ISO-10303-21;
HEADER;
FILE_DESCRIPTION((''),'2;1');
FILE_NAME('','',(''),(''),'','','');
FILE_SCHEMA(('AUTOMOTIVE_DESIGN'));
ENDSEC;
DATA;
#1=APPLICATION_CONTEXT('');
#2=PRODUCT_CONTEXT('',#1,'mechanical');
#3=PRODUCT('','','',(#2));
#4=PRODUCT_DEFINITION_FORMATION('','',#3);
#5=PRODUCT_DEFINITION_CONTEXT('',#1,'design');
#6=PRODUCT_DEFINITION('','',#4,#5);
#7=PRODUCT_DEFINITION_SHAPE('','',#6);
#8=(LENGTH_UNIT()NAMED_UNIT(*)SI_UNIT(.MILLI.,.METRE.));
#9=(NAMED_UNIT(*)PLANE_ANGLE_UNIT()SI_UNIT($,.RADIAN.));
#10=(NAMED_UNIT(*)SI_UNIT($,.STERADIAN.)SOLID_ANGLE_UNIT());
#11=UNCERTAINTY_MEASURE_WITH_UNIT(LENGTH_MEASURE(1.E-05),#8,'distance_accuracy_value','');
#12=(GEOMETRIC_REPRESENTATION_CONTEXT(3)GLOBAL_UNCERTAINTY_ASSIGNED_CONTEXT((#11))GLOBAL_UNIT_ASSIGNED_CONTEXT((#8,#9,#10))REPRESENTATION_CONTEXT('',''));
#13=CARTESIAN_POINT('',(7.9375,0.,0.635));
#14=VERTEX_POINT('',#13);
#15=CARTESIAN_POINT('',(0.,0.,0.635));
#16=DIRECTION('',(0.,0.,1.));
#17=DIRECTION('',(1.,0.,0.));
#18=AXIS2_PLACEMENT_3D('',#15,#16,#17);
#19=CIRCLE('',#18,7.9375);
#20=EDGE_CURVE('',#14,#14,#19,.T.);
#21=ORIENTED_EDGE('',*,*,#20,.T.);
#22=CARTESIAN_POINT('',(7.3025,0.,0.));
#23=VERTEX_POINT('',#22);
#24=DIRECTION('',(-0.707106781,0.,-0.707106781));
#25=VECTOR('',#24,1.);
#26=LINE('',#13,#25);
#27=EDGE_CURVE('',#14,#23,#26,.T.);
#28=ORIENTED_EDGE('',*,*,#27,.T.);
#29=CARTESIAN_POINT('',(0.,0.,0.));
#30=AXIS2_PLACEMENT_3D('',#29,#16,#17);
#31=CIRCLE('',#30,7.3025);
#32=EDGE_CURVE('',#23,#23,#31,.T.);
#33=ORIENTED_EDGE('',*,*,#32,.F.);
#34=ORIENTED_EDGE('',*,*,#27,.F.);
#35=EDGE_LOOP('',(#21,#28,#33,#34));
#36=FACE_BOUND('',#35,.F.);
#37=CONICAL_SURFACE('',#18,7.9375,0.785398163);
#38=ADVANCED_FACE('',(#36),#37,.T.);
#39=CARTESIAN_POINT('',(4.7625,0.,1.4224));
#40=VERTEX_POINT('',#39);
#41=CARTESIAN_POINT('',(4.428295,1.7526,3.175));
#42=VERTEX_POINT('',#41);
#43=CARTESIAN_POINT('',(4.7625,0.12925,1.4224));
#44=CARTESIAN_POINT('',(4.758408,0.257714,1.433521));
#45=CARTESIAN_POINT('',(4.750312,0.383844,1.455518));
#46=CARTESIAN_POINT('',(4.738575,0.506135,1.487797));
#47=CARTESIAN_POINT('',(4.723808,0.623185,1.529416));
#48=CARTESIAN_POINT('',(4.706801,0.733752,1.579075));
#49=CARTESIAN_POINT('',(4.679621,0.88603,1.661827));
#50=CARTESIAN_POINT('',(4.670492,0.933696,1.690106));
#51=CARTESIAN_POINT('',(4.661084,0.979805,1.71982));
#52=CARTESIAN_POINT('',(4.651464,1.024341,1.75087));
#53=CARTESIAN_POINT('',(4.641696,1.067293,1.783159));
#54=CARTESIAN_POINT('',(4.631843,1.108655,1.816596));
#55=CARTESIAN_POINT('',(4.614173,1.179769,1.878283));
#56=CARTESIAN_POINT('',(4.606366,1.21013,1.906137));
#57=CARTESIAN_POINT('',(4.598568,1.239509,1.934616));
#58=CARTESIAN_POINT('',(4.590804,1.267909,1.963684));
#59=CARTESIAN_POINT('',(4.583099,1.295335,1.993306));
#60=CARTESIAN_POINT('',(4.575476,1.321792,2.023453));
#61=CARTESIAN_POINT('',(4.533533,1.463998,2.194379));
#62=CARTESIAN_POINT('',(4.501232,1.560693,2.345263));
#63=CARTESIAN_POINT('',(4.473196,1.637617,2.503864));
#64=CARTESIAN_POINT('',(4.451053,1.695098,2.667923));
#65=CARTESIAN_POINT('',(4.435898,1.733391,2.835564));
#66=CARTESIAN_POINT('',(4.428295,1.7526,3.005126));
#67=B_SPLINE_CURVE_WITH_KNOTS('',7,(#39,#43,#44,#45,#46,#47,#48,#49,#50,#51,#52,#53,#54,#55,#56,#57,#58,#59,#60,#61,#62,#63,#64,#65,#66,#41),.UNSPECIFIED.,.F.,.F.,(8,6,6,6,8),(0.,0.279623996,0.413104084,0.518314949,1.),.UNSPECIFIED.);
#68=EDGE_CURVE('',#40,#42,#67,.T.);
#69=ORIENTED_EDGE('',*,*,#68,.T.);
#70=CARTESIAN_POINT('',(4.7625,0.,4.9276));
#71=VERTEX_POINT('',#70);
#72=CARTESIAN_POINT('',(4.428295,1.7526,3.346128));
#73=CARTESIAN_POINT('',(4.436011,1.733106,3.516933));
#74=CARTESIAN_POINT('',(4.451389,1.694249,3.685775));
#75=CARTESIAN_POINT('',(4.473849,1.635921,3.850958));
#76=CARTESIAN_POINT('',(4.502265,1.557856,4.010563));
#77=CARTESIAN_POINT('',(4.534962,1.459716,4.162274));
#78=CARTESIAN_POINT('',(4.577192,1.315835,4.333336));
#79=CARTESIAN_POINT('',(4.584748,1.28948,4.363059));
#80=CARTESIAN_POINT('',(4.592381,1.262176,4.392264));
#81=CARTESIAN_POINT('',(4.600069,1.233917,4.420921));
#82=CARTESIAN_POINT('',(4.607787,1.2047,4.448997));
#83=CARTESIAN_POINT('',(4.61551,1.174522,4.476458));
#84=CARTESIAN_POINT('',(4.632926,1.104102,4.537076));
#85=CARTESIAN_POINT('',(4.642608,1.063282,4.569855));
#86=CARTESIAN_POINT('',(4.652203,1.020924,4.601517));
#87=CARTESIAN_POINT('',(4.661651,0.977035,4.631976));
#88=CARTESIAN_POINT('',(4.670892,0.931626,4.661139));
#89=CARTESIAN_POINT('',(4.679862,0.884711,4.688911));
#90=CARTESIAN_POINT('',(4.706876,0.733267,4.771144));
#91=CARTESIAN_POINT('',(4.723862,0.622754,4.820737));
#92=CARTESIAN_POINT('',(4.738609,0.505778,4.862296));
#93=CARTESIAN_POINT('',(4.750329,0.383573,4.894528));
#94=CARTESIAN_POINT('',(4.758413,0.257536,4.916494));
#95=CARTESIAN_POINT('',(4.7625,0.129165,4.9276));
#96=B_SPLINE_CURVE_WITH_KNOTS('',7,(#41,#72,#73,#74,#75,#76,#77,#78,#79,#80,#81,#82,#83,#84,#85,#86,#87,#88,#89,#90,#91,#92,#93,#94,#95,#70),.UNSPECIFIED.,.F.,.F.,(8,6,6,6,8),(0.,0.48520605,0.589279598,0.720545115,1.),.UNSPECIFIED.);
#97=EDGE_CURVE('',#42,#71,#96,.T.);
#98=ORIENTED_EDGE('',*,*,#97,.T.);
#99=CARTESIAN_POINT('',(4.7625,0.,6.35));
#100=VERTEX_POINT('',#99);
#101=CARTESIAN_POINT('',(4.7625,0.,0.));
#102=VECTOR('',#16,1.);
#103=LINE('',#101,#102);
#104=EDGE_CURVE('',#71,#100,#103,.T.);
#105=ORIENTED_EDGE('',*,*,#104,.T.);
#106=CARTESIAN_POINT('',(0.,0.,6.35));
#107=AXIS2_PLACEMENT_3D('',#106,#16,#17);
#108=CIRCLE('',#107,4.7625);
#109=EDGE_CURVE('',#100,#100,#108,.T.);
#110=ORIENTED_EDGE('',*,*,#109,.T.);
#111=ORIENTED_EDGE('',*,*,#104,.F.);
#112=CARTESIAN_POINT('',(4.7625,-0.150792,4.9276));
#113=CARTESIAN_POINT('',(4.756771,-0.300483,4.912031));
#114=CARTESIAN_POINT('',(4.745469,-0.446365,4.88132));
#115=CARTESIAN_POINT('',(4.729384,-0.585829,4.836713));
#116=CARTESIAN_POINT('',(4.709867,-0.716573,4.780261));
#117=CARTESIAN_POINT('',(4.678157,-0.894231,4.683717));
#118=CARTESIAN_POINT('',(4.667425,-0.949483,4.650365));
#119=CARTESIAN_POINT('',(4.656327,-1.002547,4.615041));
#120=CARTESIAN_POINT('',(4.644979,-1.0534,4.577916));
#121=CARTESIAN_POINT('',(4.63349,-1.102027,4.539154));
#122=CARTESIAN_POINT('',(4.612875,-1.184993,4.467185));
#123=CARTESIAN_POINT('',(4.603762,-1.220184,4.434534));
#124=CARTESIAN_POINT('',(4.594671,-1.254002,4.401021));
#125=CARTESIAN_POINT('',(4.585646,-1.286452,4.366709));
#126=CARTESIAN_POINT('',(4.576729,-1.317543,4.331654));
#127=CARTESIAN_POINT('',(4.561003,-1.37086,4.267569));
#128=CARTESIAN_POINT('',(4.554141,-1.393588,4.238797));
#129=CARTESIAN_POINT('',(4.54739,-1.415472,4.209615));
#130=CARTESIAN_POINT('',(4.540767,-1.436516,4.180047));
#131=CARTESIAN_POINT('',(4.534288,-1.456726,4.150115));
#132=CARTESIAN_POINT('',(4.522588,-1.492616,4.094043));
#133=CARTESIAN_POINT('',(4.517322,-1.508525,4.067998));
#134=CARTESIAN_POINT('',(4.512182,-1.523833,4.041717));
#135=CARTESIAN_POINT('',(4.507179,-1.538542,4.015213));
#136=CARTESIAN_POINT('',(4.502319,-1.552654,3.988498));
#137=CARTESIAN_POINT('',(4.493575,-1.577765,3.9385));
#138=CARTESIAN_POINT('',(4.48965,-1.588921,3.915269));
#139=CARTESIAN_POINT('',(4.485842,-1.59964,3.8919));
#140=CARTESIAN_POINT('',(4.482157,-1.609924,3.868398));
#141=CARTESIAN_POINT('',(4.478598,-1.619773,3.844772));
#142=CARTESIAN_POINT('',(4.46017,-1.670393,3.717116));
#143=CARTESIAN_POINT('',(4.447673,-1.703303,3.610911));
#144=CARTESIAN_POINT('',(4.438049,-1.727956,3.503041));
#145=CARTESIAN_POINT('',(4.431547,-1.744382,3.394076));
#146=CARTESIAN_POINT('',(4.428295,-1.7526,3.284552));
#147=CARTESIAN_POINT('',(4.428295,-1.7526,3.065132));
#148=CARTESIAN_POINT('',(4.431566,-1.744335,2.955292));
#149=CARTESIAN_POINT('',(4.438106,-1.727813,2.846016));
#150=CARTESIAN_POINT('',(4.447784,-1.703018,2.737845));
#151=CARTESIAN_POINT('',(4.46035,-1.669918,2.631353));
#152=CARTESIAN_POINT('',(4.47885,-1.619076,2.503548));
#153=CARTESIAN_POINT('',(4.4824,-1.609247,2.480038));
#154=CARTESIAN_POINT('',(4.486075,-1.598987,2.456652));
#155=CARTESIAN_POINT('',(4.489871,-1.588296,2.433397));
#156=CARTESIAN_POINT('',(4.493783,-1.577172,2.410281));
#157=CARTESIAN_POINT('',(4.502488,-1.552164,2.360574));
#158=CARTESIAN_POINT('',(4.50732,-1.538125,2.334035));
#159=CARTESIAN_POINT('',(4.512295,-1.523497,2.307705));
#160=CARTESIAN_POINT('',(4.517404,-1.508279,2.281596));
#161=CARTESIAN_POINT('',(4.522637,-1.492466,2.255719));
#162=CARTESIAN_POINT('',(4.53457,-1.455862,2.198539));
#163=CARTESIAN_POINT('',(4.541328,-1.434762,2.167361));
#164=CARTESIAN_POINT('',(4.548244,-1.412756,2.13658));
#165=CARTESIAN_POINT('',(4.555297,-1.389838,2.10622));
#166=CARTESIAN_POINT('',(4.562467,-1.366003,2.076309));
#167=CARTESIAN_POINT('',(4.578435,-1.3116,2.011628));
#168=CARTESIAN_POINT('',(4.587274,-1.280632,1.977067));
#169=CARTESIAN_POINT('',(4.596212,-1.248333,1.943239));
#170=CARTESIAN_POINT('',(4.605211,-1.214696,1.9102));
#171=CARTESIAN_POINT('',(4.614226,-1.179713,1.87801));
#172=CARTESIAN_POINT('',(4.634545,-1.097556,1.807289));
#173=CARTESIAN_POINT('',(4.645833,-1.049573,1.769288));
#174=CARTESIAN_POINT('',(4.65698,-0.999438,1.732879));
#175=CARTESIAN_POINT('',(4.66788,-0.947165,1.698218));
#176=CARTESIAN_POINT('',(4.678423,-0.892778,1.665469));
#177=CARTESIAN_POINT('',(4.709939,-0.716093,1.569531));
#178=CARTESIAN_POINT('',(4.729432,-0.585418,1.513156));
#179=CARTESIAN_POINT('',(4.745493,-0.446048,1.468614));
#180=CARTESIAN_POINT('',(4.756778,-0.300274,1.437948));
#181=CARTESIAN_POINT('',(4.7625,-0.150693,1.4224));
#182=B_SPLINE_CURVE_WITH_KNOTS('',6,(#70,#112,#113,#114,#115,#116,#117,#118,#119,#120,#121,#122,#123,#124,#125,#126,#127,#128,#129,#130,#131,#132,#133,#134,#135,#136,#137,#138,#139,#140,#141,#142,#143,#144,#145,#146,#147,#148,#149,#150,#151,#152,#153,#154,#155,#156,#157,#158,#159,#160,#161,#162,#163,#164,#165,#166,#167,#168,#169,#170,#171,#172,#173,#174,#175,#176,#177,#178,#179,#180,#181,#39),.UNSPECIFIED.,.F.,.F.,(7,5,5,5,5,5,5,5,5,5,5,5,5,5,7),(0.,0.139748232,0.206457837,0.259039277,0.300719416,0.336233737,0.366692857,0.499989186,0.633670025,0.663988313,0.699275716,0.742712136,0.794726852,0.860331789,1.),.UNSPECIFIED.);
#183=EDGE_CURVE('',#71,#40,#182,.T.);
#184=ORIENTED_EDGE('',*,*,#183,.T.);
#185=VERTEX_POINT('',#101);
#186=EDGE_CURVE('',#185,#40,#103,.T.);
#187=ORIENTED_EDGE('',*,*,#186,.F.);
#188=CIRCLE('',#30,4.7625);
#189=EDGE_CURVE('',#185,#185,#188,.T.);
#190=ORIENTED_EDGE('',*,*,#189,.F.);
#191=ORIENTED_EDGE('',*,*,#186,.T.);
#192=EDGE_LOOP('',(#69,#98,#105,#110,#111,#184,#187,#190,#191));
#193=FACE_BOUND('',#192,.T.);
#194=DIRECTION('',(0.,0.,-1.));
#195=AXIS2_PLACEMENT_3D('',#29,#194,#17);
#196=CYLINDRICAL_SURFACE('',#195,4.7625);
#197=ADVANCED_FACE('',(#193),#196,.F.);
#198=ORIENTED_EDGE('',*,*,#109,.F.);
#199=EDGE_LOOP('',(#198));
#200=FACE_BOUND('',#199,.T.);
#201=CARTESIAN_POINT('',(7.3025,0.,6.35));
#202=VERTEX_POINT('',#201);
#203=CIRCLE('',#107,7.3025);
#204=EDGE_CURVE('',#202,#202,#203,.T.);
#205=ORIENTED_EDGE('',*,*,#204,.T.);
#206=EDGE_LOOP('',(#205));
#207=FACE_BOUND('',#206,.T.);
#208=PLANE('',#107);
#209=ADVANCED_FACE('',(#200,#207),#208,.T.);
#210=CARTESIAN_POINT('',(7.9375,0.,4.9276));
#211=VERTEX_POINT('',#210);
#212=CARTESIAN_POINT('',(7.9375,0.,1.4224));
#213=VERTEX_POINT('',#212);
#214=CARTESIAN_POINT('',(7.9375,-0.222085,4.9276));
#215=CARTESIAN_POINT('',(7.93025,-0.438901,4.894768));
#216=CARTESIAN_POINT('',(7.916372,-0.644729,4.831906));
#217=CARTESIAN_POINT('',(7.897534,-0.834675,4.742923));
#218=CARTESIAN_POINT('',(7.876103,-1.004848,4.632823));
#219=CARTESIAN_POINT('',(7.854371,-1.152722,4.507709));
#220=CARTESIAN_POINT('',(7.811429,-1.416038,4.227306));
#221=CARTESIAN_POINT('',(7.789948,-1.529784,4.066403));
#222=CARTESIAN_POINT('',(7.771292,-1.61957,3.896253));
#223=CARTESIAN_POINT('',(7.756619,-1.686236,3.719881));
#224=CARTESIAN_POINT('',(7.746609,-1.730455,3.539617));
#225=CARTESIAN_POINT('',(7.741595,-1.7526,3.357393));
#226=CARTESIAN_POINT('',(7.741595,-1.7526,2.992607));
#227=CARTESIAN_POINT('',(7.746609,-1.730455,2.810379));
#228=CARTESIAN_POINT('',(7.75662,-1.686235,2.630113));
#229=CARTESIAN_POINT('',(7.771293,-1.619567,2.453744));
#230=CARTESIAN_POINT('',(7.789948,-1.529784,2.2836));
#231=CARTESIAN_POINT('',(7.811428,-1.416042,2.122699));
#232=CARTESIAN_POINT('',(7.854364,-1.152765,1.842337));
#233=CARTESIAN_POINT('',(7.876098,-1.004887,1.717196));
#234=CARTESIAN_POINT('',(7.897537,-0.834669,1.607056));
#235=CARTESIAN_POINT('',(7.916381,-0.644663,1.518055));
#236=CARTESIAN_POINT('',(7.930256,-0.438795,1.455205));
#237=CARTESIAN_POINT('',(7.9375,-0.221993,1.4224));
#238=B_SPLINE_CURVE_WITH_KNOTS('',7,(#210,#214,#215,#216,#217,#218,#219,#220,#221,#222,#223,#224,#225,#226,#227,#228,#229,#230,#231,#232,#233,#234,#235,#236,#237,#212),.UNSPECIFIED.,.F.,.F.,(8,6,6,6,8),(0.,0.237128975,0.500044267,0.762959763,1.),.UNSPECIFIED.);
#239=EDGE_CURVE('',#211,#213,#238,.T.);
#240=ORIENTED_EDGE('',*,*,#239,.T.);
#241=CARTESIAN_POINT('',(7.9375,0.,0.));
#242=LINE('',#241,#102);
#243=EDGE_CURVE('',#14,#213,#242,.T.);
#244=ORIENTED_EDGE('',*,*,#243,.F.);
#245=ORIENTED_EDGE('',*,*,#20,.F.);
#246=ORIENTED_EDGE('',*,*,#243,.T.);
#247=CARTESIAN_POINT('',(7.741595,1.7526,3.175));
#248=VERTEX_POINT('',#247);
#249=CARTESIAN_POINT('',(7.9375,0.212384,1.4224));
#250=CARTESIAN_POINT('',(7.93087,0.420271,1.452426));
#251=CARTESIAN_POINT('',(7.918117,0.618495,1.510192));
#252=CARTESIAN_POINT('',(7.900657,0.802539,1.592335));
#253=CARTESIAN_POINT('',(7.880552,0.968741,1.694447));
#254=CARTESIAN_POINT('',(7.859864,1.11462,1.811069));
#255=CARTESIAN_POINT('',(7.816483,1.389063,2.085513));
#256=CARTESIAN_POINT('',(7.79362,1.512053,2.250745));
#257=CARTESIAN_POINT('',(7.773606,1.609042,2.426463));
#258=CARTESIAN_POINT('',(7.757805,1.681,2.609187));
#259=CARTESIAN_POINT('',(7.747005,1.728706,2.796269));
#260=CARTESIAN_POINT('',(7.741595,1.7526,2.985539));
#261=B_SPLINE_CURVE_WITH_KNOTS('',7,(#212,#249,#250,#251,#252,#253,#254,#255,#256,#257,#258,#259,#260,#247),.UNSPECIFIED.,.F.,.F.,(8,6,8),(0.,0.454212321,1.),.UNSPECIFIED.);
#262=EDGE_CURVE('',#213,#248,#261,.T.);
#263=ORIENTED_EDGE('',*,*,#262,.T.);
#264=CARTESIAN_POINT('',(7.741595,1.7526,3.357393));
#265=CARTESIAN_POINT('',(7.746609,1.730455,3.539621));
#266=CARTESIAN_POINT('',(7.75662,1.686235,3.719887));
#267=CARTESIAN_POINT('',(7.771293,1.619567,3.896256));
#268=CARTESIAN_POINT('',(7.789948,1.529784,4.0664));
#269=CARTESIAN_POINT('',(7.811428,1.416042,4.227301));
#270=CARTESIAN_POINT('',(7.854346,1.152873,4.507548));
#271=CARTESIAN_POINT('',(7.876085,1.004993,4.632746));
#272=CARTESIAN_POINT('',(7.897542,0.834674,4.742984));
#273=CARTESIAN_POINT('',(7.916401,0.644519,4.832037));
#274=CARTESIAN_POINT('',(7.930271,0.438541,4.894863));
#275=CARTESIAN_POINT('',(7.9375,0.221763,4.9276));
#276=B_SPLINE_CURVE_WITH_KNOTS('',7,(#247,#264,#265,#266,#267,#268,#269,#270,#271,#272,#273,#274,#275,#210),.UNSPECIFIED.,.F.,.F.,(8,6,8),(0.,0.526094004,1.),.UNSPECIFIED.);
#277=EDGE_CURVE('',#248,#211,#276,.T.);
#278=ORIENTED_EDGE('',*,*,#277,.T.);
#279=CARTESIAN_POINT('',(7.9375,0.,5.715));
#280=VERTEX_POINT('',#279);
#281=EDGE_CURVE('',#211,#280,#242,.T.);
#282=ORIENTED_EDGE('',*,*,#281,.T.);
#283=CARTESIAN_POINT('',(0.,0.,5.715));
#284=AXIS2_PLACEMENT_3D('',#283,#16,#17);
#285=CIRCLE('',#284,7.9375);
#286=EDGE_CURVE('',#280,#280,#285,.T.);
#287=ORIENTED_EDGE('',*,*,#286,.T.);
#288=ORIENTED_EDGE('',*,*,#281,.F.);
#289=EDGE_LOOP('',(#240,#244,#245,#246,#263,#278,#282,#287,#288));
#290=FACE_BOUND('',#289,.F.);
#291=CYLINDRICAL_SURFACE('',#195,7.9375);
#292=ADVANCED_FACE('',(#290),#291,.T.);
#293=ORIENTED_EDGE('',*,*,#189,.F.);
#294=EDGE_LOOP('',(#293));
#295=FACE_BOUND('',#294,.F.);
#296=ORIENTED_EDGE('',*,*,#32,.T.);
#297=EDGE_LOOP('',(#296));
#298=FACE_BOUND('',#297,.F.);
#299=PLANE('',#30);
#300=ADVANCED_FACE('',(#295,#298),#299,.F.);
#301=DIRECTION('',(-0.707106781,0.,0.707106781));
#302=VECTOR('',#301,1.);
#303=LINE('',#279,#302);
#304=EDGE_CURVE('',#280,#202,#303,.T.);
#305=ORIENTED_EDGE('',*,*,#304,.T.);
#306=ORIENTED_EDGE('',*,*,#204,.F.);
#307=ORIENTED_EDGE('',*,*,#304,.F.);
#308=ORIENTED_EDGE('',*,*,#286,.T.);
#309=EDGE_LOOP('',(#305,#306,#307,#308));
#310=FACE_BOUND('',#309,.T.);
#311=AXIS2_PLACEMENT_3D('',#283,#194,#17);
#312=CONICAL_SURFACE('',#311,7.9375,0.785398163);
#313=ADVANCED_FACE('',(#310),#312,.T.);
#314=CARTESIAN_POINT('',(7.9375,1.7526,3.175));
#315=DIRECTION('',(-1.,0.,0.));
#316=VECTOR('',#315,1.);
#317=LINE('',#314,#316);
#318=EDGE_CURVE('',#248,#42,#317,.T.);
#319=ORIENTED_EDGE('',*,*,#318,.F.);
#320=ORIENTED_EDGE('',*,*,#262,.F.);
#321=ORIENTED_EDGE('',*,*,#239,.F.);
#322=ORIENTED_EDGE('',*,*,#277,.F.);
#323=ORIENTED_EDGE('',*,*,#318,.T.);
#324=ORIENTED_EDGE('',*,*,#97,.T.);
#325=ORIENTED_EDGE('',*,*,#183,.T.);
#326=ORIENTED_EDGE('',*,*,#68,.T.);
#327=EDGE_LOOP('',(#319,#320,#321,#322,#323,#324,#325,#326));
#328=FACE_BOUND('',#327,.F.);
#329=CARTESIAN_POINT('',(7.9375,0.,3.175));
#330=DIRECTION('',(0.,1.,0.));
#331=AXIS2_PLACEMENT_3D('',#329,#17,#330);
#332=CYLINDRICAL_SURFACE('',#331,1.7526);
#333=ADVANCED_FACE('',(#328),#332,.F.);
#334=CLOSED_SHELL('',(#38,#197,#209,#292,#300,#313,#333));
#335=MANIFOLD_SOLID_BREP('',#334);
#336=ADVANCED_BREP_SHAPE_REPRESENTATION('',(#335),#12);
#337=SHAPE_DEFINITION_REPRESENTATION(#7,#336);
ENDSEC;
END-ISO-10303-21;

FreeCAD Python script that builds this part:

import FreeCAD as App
import Part
import Sketcher
from FreeCAD import Vector
Q = App.Units.Quantity


def edges_at(feature, points):
    """Names of the edges that pass closest to the given points."""
    edges = feature.Shape.Edges
    near = lambda p: min(range(len(edges)), key=lambda i: edges[i].distToShape(Part.Vertex(*p))[0])
    return sorted({f"Edge{near(p) + 1}" for p in points})

doc = App.newDocument("Part")
body = doc.addObject("PartDesign::Body", "Body")

# Sketch on XY plane
sketch1 = doc.addObject("Sketcher::SketchObject", "Sketch")
body.addObject(sketch1)
sketch1.AttachmentSupport = (doc.XY_Plane, [""])
sketch1.MapMode = "FlatFace"
sketch1.addGeometry([
    Part.Circle(Vector(0, 0, 0), Vector(0, 0, 1), 7.9),
    Part.Circle(Vector(0, 0, 0), Vector(0, 0, 1), 4.8),
], False)
sketch1.addConstraint([
    Sketcher.Constraint("Coincident", 0, 3, -1, 1),
    Sketcher.Constraint("Coincident", 1, 3, -1, 1),
    Sketcher.Constraint("Diameter", 0, Q("0.625 in")),
    Sketcher.Constraint("Diameter", 1, Q("0.375 in")),
])
pad1 = doc.addObject("PartDesign::Pad", "Pad")
body.addObject(pad1)
pad1.Profile = sketch1
pad1.Length = Q("0.25 in")

# Sketch on YZ plane
sketch2 = doc.addObject("Sketcher::SketchObject", "Sketch001")
body.addObject(sketch2)
sketch2.AttachmentSupport = (doc.YZ_Plane, [""])
sketch2.MapMode = "FlatFace"
sketch2.AttachmentOffset = App.Placement(Vector(0, 0, 0.3125 * 25.4), App.Rotation())
sketch2.addGeometry(Part.Circle(Vector(0, 3.2, 0), Vector(0, 0, 1), 1.8), False)
sketch2.addConstraint([
    Sketcher.Constraint("PointOnObject", 0, 3, -2),
    Sketcher.Constraint("Diameter", 0, Q("0.138 in")),
    Sketcher.Constraint("DistanceY", -1, 1, 0, 3, Q("0.125 in")),
])
pocket1 = doc.addObject("PartDesign::Pocket", "Pocket")
body.addObject(pocket1)
pocket1.Profile = sketch2
pocket1.Length = Q("0.2 in")
doc.recompute()

chamfer = doc.addObject("PartDesign::Chamfer", "Chamfer")
body.addObject(chamfer)
chamfer.Base = (pocket1, edges_at(pocket1, [(-7.938, 0, 6.35), (-7.938, 0, 0)]))
chamfer.Size = Q("0.025 in")

doc.recompute()
